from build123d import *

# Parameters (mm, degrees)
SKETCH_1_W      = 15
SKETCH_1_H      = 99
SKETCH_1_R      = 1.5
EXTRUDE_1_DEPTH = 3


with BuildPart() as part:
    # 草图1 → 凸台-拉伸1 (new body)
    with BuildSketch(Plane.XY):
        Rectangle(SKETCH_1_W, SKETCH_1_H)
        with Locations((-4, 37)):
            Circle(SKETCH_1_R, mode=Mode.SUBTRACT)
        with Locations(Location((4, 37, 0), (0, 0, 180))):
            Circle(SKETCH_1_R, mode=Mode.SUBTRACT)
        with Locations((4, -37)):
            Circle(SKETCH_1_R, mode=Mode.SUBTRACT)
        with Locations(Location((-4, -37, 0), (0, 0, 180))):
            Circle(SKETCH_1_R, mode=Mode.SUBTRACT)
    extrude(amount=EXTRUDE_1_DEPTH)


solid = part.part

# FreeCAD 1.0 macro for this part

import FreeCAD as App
import Part
import Sketcher
Q = App.Units.Quantity

doc = App.newDocument("Part")
body = doc.addObject("PartDesign::Body", "Body")

sketch1 = doc.addObject("Sketcher::SketchObject", "Sketch")
body.addObject(sketch1)
sketch1.AttachmentSupport = (doc.XY_Plane, [""])
sketch1.MapMode = "FlatFace"
sketch1.addGeometry(Part.LineSegment(App.Vector(-7.5, 49.5, 0), App.Vector(-7.5, -49.5, 0)), False)
sketch1.addGeometry(Part.LineSegment(App.Vector(-7.5, -49.5, 0), App.Vector(7.5, -49.5, 0)), False)
sketch1.addGeometry(Part.LineSegment(App.Vector(7.5, -49.5, 0), App.Vector(7.5, 49.5, 0)), False)
sketch1.addGeometry(Part.LineSegment(App.Vector(7.5, 49.5, 0), App.Vector(-7.5, 49.5, 0)), False)
sketch1.addGeometry(Part.Circle(App.Vector(-4, -37, 0), App.Vector(0, 0, 1), 1.5), False)
sketch1.addGeometry(Part.Circle(App.Vector(4, -37, 0), App.Vector(0, 0, 1), 1.5), False)
sketch1.addGeometry(Part.Circle(App.Vector(-4, 37, 0), App.Vector(0, 0, 1), 1.5), False)
sketch1.addGeometry(Part.Circle(App.Vector(4, 37, 0), App.Vector(0, 0, 1), 1.5), False)
sketch1.addConstraint(Sketcher.Constraint("Coincident", 0, 2, 1, 1))
sketch1.addConstraint(Sketcher.Constraint("Coincident", 1, 2, 2, 1))
sketch1.addConstraint(Sketcher.Constraint("Coincident", 2, 2, 3, 1))
sketch1.addConstraint(Sketcher.Constraint("Coincident", 3, 2, 0, 1))
sketch1.addConstraint(Sketcher.Constraint("Vertical", 0))
sketch1.addConstraint(Sketcher.Constraint("Horizontal", 1))
sketch1.addConstraint(Sketcher.Constraint("Vertical", 2))
sketch1.addConstraint(Sketcher.Constraint("Horizontal", 3))
sketch1.addConstraint(Sketcher.Constraint("Equal", 4, 5))
sketch1.addConstraint(Sketcher.Constraint("Equal", 5, 6))
sketch1.addConstraint(Sketcher.Constraint("Equal", 6, 7))
sketch1.addConstraint(Sketcher.Constraint("Symmetric", 5, 3, 6, 3, -1, 1))
sketch1.addConstraint(Sketcher.Constraint("Symmetric", 4, 3, 7, 3, -1, 1))
sketch1.addConstraint(Sketcher.Constraint("Symmetric", 0, 2, 2, 2, -1, 1))
sketch1.addConstraint(Sketcher.Constraint("Symmetric", 4, 3, 5, 3, -2))
sketch1.addConstraint(Sketcher.Constraint("Diameter", 4, Q("3 mm")))
sketch1.addConstraint(Sketcher.Constraint("DistanceX", 1, 1, 1, 2, Q("15 mm")))
sketch1.addConstraint(Sketcher.Constraint("DistanceY", 0, 2, 0, 1, Q("99 mm")))
sketch1.addConstraint(Sketcher.Constraint("DistanceX", 4, 3, -1, 1, Q("4 mm")))
sketch1.addConstraint(Sketcher.Constraint("DistanceY", 4, 3, -1, 1, Q("37 mm")))
pad1 = doc.addObject("PartDesign::Pad", "Pad")
body.addObject(pad1)
pad1.Profile = sketch1
pad1.Length = 3

doc.recompute()
